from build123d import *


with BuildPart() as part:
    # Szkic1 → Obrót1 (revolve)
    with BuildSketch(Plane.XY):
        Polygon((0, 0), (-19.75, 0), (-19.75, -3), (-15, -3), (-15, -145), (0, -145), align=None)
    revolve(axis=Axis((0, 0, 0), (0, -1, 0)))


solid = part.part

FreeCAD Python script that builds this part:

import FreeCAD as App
import Part
import Sketcher
Q = App.Units.Quantity


def add_polygon(sketch, points):
    """Adds a closed chain of lines whose ends are joined by coincident constraints."""
    first, n = sketch.GeometryCount, len(points)
    for a, b in zip(points, points[1:] + points[:1]):
        sketch.addGeometry(Part.LineSegment(App.Vector(*a, 0), App.Vector(*b, 0)), False)
    for i in range(n):
        sketch.addConstraint(Sketcher.Constraint("Coincident", first + i, 2, first + (i + 1) % n, 1))

doc = App.newDocument("Part")
body = doc.addObject("PartDesign::Body", "Body")

# Sketch on XY plane
sketch1 = doc.addObject("Sketcher::SketchObject", "Sketch")
body.addObject(sketch1)
sketch1.AttachmentSupport = (doc.XY_Plane, [""])
sketch1.MapMode = "FlatFace"
add_polygon(sketch1, [(0, 0), (-19.75, 0), (-19.75, -3), (-15, -3), (-15, -145), (0, -145)])  # lines 0-5
sketch1.addConstraint([
    Sketcher.Constraint("Horizontal", 0),
    Sketcher.Constraint("Vertical", 1),
    Sketcher.Constraint("Horizontal", 2),
    Sketcher.Constraint("Vertical", 3),
    Sketcher.Constraint("Horizontal", 4),
    Sketcher.Constraint("Vertical", 5),
    Sketcher.Constraint("Coincident", 5, 2, -1, 1),
    Sketcher.Constraint("DistanceX", 4, 1, 4, 2, Q("15 mm")),
    Sketcher.Constraint("DistanceY", 1, 2, 1, 1, Q("3 mm")),
    Sketcher.Constraint("DistanceY", 3, 2, 3, 1, Q("142 mm")),
    Sketcher.Constraint("DistanceX", 0, 2, 0, 1, Q("19.75 mm")),
])
revolution = doc.addObject("PartDesign::Revolution", "Revolution")
body.addObject(revolution)
revolution.Profile = sketch1
revolution.ReferenceAxis = (sketch1, ["V_Axis"])
revolution.Angle = 360

doc.recompute()
